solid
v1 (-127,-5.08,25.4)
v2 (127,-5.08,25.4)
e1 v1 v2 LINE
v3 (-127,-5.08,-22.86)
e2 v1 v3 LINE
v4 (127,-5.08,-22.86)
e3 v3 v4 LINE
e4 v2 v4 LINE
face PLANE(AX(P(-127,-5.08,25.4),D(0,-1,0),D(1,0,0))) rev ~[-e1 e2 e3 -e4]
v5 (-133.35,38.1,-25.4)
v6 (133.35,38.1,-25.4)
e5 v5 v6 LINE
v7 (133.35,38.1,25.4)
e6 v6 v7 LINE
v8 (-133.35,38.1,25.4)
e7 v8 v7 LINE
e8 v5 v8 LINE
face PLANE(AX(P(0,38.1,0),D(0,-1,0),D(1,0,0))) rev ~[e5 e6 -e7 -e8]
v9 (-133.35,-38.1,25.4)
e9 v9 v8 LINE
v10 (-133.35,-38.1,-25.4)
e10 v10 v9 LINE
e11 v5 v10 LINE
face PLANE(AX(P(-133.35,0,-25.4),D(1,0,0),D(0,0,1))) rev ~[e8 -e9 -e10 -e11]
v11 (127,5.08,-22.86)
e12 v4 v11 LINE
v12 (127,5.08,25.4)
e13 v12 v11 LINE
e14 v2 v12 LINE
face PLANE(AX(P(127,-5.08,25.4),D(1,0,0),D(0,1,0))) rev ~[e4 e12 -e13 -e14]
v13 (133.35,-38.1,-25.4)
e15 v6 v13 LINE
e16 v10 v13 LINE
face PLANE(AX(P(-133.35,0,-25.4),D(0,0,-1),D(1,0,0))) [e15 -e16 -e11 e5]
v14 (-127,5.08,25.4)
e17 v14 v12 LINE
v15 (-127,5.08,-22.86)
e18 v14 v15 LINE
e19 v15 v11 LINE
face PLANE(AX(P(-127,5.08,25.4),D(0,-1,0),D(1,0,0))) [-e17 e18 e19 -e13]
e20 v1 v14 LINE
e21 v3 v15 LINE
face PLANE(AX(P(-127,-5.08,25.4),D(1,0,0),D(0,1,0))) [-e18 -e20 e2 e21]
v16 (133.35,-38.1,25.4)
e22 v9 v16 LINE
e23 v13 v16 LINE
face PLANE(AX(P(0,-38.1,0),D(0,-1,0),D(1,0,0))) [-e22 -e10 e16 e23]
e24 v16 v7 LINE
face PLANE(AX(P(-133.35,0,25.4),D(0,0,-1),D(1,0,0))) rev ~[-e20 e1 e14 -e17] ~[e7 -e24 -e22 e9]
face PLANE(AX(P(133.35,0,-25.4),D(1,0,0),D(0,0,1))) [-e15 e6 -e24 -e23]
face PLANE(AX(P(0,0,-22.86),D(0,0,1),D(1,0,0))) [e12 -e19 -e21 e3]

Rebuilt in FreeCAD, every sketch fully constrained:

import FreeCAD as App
import Part
import Sketcher
Q = App.Units.Quantity


def add_polygon(sketch, points):
    """Adds a closed chain of lines whose ends are joined by coincident constraints."""
    first, n = sketch.GeometryCount, len(points)
    for a, b in zip(points, points[1:] + points[:1]):
        sketch.addGeometry(Part.LineSegment(App.Vector(*a, 0), App.Vector(*b, 0)), False)
    for i in range(n):
        sketch.addConstraint(Sketcher.Constraint("Coincident", first + i, 2, first + (i + 1) % n, 1))

doc = App.newDocument("Part")
params = doc.addObject("Spreadsheet::Sheet", "Params")
for row, (alias, value) in enumerate([
    ("sketch1_height", "2 in"),
    ("sketch1_width", "10.5 in"),
    ("pad1_length", "3 in"),
    ("sketch2_width", "10 in"),
    ("sketch2_height", "0.4 in"),
    ("pocket1_length", "1.9 in"),
], start=1):
    params.set(f"A{row}", alias)
    params.set(f"B{row}", "=" + value)
    params.setAlias(f"B{row}", alias)

body = doc.addObject("PartDesign::Body", "Body")

# Sketch on XZ plane
sketch1 = body.newObject("Sketcher::SketchObject", "Sketch")
sketch1.AttachmentSupport = (doc.getObject("XZ_Plane"), [""])
sketch1.MapMode = "FlatFace"
add_polygon(sketch1, [(-133, 25), (-133, -25), (133, -25), (133, 25)])  # lines 0-3
sketch1.addConstraint([
    Sketcher.Constraint("Vertical", 0),
    Sketcher.Constraint("Horizontal", 1),
    Sketcher.Constraint("Vertical", 2),
    Sketcher.Constraint("Horizontal", 3),
    Sketcher.Constraint("Symmetric", 0, 2, 2, 2, -1, 1),
    Sketcher.Constraint("DistanceY", 0, 2, 0, 1, Q("2 in")),
    Sketcher.Constraint("DistanceX", 1, 1, 1, 2, Q("10.5 in")),
])
sketch1.setExpression("Constraints[9]", "Params.sketch1_height")
sketch1.setExpression("Constraints[10]", "Params.sketch1_width")
pad1 = body.newObject("PartDesign::Pad", "Pad")
pad1.Profile = sketch1
pad1.setExpression("Length", "Params.pad1_length")
pad1.Midplane = True

# Sketch on XY plane
sketch2 = body.newObject("Sketcher::SketchObject", "Sketch001")
sketch2.AttachmentSupport = (doc.getObject("XY_Plane"), [""])
sketch2.MapMode = "FlatFace"
sketch2.AttachmentOffset = App.Placement(App.Vector(0, 0, 1 * 25.4), App.Rotation())
add_polygon(sketch2, [(-127, 5), (-127, -5), (127, -5), (127, 5)])  # lines 0-3
sketch2.addConstraint([
    Sketcher.Constraint("Vertical", 0),
    Sketcher.Constraint("Horizontal", 1),
    Sketcher.Constraint("Vertical", 2),
    Sketcher.Constraint("Horizontal", 3),
    Sketcher.Constraint("Symmetric", 0, 2, 2, 2, -1, 1),
    Sketcher.Constraint("DistanceX", 1, 1, 1, 2, Q("10 in")),
    Sketcher.Constraint("DistanceY", 0, 2, 0, 1, Q("0.4 in")),
])
sketch2.setExpression("Constraints[9]", "Params.sketch2_width")
sketch2.setExpression("Constraints[10]", "Params.sketch2_height")
pocket1 = body.newObject("PartDesign::Pocket", "Pocket")
pocket1.Profile = sketch2
pocket1.setExpression("Length", "Params.pocket1_length")

doc.recompute()
